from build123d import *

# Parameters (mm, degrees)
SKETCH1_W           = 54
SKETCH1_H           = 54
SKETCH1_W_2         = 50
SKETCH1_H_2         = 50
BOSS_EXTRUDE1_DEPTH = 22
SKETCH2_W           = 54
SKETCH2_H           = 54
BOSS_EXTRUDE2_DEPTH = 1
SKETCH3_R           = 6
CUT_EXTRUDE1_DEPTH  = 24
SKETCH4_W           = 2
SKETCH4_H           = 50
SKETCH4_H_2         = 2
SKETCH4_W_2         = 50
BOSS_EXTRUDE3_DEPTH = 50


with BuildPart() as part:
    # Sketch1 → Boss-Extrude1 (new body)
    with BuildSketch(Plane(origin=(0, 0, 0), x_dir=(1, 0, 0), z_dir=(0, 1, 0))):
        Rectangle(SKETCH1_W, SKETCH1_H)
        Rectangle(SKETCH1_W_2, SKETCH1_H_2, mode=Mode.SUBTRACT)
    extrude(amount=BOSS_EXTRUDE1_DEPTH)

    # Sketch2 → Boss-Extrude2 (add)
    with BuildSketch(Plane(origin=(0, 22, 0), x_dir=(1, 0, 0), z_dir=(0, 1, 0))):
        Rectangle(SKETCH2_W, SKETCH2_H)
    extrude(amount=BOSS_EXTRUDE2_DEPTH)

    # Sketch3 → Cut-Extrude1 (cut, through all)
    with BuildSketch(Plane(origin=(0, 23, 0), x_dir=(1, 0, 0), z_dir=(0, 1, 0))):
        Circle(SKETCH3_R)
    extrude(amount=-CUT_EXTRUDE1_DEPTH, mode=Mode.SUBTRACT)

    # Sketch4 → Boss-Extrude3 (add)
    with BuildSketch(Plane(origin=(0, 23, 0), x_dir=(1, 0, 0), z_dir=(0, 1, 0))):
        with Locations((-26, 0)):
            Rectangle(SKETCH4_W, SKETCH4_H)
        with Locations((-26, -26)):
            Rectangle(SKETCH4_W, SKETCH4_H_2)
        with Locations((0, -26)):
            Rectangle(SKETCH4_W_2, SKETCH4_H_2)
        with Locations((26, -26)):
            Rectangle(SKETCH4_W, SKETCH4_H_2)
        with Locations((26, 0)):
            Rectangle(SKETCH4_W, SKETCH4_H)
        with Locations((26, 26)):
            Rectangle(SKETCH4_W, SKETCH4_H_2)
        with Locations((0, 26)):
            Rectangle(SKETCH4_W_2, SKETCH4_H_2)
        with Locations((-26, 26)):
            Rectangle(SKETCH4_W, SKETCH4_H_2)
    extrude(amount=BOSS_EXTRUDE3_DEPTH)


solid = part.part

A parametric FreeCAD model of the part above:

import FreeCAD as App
import Part
import Sketcher

V = App.Vector
Q = App.Units.Quantity

doc = App.newDocument("Part")
params = doc.addObject("Spreadsheet::Sheet", "Params")
for row, (alias, value) in enumerate([
    ("sketch1_width", "54 mm"),
    ("sketch1_width2", "50 mm"),
    ("pad1_length", "22 mm"),
    ("sketch2_width", "54 mm"),
    ("pad2_length", "1 mm"),
    ("sketch3_diameter", "12 mm"),
    ("sketch4_width", "54 mm"),
    ("sketch4_width2", "50 mm"),
    ("pad3_length", "50 mm"),
], start=1):
    params.set(f"A{row}", alias)
    params.set(f"B{row}", "=" + value)
    params.setAlias(f"B{row}", alias)

body = doc.addObject("PartDesign::Body", "Body")

# Sketch on XZ plane
sketch1 = doc.addObject("Sketcher::SketchObject", "Sketch")
body.addObject(sketch1)
sketch1.AttachmentSupport = (doc.XZ_Plane, [""])
sketch1.MapMode = "FlatFace"
sketch1.addGeometry([
    Part.LineSegment(V(-27, -27, 0), V(-27, 27, 0)),  # 0
    Part.LineSegment(V(-27, 27, 0), V(27, 27, 0)),  # 1
    Part.LineSegment(V(27, 27, 0), V(27, -27, 0)),  # 2
    Part.LineSegment(V(27, -27, 0), V(-27, -27, 0)),  # 3
    Part.LineSegment(V(25, 25, 0), V(-25, 25, 0)),  # 4
    Part.LineSegment(V(-25, 25, 0), V(-25, -25, 0)),  # 5
    Part.LineSegment(V(-25, -25, 0), V(25, -25, 0)),  # 6
    Part.LineSegment(V(25, -25, 0), V(25, 25, 0)),  # 7
], False)
sketch1.addConstraint([
    Sketcher.Constraint("Coincident", 0, 2, 1, 1),
    Sketcher.Constraint("Coincident", 1, 2, 2, 1),
    Sketcher.Constraint("Coincident", 2, 2, 3, 1),
    Sketcher.Constraint("Coincident", 3, 2, 0, 1),
    Sketcher.Constraint("Coincident", 4, 2, 5, 1),
    Sketcher.Constraint("Coincident", 5, 2, 6, 1),
    Sketcher.Constraint("Coincident", 6, 2, 7, 1),
    Sketcher.Constraint("Coincident", 7, 2, 4, 1),
    Sketcher.Constraint("Vertical", 0),
    Sketcher.Constraint("Horizontal", 1),
    Sketcher.Constraint("Vertical", 2),
    Sketcher.Constraint("Horizontal", 3),
    Sketcher.Constraint("Horizontal", 4),
    Sketcher.Constraint("Vertical", 5),
    Sketcher.Constraint("Horizontal", 6),
    Sketcher.Constraint("Vertical", 7),
    Sketcher.Constraint("Symmetric", 0, 2, 2, 2, -1, 1),
    Sketcher.Constraint("Symmetric", 4, 2, 6, 2, -1, 1),
    Sketcher.Constraint("Equal", 3, 0),
    Sketcher.Constraint("Equal", 6, 5),
    Sketcher.Constraint("DistanceX", 1, 1, 1, 2, Q("54 mm")),
    Sketcher.Constraint("DistanceX", 4, 2, 4, 1, Q("50 mm")),
])
sketch1.setExpression("Constraints[20]", "Params.sketch1_width")
sketch1.setExpression("Constraints[21]", "Params.sketch1_width2")
pad1 = doc.addObject("PartDesign::Pad", "Pad")
body.addObject(pad1)
pad1.Profile = sketch1
pad1.setExpression("Length", "Params.pad1_length")
pad1.Reversed = True

# Sketch on XZ plane
sketch2 = doc.addObject("Sketcher::SketchObject", "Sketch001")
body.addObject(sketch2)
sketch2.AttachmentSupport = (doc.XZ_Plane, [""])
sketch2.MapMode = "FlatFace"
sketch2.AttachmentOffset = App.Placement(V(0, 0, -22), App.Rotation())
sketch2.addGeometry([
    Part.LineSegment(V(-27, -27, 0), V(-27, 27, 0)),
    Part.LineSegment(V(-27, 27, 0), V(27, 27, 0)),
    Part.LineSegment(V(27, 27, 0), V(27, -27, 0)),
    Part.LineSegment(V(27, -27, 0), V(-27, -27, 0)),
], False)
sketch2.addConstraint([
    Sketcher.Constraint("Coincident", 0, 2, 1, 1),
    Sketcher.Constraint("Coincident", 1, 2, 2, 1),
    Sketcher.Constraint("Coincident", 2, 2, 3, 1),
    Sketcher.Constraint("Coincident", 3, 2, 0, 1),
    Sketcher.Constraint("Vertical", 0),
    Sketcher.Constraint("Horizontal", 1),
    Sketcher.Constraint("Vertical", 2),
    Sketcher.Constraint("Horizontal", 3),
    Sketcher.Constraint("Symmetric", 0, 2, 2, 2, -1, 1),
    Sketcher.Constraint("Equal", 3, 0),
    Sketcher.Constraint("DistanceX", 1, 1, 1, 2, Q("54 mm")),
])
sketch2.setExpression("Constraints[10]", "Params.sketch2_width")
pad2 = doc.addObject("PartDesign::Pad", "Pad001")
body.addObject(pad2)
pad2.Profile = sketch2
pad2.setExpression("Length", "Params.pad2_length")
pad2.Reversed = True

# Sketch on XZ plane
sketch3 = doc.addObject("Sketcher::SketchObject", "Sketch002")
body.addObject(sketch3)
sketch3.AttachmentSupport = (doc.XZ_Plane, [""])
sketch3.MapMode = "FlatFace"
sketch3.AttachmentOffset = App.Placement(V(0, 0, -23), App.Rotation())
sketch3.addGeometry(Part.Circle(V(0, 0, 0), V(0, 0, 1), 6), False)
sketch3.addConstraint([
    Sketcher.Constraint("Coincident", 0, 3, -1, 1),
    Sketcher.Constraint("Diameter", 0, Q("12 mm")),
])
sketch3.setExpression("Constraints[1]", "Params.sketch3_diameter")
pocket1 = doc.addObject("PartDesign::Pocket", "Pocket")
body.addObject(pocket1)
pocket1.Profile = sketch3
pocket1.Type = "ThroughAll"
pocket1.Reversed = True

# Sketch on XZ plane
sketch4 = doc.addObject("Sketcher::SketchObject", "Sketch003")
body.addObject(sketch4)
sketch4.AttachmentSupport = (doc.XZ_Plane, [""])
sketch4.MapMode = "FlatFace"
sketch4.AttachmentOffset = App.Placement(V(0, 0, -23), App.Rotation())
sketch4.addGeometry([
    Part.LineSegment(V(27, -27, 0), V(-27, -27, 0)),  # 0
    Part.LineSegment(V(-27, -27, 0), V(-27, 27, 0)),  # 1
    Part.LineSegment(V(-27, 27, 0), V(27, 27, 0)),  # 2
    Part.LineSegment(V(27, 27, 0), V(27, -27, 0)),  # 3
    Part.LineSegment(V(-25, 25, 0), V(-25, -25, 0)),  # 4
    Part.LineSegment(V(-25, -25, 0), V(25, -25, 0)),  # 5
    Part.LineSegment(V(25, -25, 0), V(25, 25, 0)),  # 6
    Part.LineSegment(V(25, 25, 0), V(-25, 25, 0)),  # 7
], False)
sketch4.addConstraint([
    Sketcher.Constraint("Coincident", 0, 2, 1, 1),
    Sketcher.Constraint("Coincident", 1, 2, 2, 1),
    Sketcher.Constraint("Coincident", 2, 2, 3, 1),
    Sketcher.Constraint("Coincident", 3, 2, 0, 1),
    Sketcher.Constraint("Coincident", 4, 2, 5, 1),
    Sketcher.Constraint("Coincident", 5, 2, 6, 1),
    Sketcher.Constraint("Coincident", 6, 2, 7, 1),
    Sketcher.Constraint("Coincident", 7, 2, 4, 1),
    Sketcher.Constraint("Horizontal", 0),
    Sketcher.Constraint("Vertical", 1),
    Sketcher.Constraint("Horizontal", 2),
    Sketcher.Constraint("Vertical", 3),
    Sketcher.Constraint("Vertical", 4),
    Sketcher.Constraint("Horizontal", 5),
    Sketcher.Constraint("Vertical", 6),
    Sketcher.Constraint("Horizontal", 7),
    Sketcher.Constraint("Symmetric", 0, 2, 2, 2, -1, 1),
    Sketcher.Constraint("Symmetric", 4, 2, 6, 2, -1, 1),
    Sketcher.Constraint("Equal", 2, 1),
    Sketcher.Constraint("Equal", 7, 4),
    Sketcher.Constraint("DistanceX", 0, 2, 0, 1, Q("54 mm")),
    Sketcher.Constraint("DistanceX", 5, 1, 5, 2, Q("50 mm")),
])
sketch4.setExpression("Constraints[20]", "Params.sketch4_width")
sketch4.setExpression("Constraints[21]", "Params.sketch4_width2")
pad3 = doc.addObject("PartDesign::Pad", "Pad002")
body.addObject(pad3)
pad3.Profile = sketch4
pad3.setExpression("Length", "Params.pad3_length")
pad3.Reversed = True

doc.recompute()
